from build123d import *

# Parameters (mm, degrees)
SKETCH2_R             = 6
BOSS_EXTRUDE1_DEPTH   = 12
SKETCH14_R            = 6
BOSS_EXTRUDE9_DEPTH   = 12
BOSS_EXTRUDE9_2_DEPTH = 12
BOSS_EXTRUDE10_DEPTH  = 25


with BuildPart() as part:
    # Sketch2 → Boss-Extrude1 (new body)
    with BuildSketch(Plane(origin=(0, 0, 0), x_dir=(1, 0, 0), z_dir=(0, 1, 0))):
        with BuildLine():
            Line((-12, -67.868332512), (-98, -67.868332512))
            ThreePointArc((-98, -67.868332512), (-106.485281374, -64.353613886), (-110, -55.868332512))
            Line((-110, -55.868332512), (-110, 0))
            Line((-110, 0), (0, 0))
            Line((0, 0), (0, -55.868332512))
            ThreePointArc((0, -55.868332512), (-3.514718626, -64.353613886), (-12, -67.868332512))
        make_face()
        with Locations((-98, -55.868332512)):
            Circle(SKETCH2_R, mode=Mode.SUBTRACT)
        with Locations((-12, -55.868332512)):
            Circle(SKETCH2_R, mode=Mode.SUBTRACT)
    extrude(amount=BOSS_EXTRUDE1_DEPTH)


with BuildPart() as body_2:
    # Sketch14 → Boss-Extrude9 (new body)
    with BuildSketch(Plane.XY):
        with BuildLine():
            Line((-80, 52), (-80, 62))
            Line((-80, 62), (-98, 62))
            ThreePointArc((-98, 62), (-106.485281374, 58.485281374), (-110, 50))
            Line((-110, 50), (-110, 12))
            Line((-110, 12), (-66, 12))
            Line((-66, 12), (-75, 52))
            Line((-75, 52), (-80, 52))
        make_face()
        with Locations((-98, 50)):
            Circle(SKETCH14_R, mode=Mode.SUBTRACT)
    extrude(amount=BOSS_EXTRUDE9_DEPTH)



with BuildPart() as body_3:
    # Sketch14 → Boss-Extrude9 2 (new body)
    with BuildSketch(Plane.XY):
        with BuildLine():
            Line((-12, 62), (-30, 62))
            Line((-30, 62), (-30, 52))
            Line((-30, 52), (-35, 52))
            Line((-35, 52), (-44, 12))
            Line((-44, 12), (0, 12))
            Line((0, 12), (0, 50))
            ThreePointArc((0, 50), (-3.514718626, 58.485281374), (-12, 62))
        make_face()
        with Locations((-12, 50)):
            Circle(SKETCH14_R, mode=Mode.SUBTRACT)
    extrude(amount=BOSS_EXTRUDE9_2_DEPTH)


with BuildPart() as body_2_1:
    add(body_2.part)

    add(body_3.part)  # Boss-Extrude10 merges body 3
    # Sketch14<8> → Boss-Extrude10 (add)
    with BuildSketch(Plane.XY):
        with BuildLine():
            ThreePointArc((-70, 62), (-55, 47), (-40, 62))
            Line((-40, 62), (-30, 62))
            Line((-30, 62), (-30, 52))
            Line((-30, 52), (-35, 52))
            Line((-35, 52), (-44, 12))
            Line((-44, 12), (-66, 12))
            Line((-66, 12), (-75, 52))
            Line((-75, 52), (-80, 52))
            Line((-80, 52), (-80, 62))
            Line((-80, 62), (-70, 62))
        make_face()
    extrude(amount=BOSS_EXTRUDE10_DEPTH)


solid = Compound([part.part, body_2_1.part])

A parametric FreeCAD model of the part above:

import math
import FreeCAD as App
import Part
import Sketcher
Q = App.Units.Quantity

doc = App.newDocument("Part")
body = doc.addObject("PartDesign::Body", "Body")

sketch1 = doc.addObject("Sketcher::SketchObject", "Sketch")
body.addObject(sketch1)
sketch1.AttachmentSupport = (doc.XZ_Plane, [""])
sketch1.MapMode = "FlatFace"
sketch1.addGeometry(Part.LineSegment(App.Vector(-98, 68, 0), App.Vector(-12, 68, 0)), False)
sketch1.addGeometry(Part.ArcOfCircle(Part.Circle(App.Vector(-12, 56, 0), App.Vector(0, 0, 1), 12), math.radians(0), math.radians(90)), False)
sketch1.addGeometry(Part.LineSegment(App.Vector(0, 56, 0), App.Vector(0, 0, 0)), False)
sketch1.addGeometry(Part.LineSegment(App.Vector(0, 0, 0), App.Vector(-110, 0, 0)), False)
sketch1.addGeometry(Part.LineSegment(App.Vector(-110, 0, 0), App.Vector(-110, 56, 0)), False)
sketch1.addGeometry(Part.ArcOfCircle(Part.Circle(App.Vector(-98, 56, 0), App.Vector(0, 0, 1), 12), math.radians(90), math.radians(180)), False)
sketch1.addGeometry(Part.Circle(App.Vector(-12, 56, 0), App.Vector(0, 0, 1), 6), False)
sketch1.addGeometry(Part.Circle(App.Vector(-98, 56, 0), App.Vector(0, 0, 1), 6), False)
sketch1.addConstraint(Sketcher.Constraint("Tangent", 0, 2, 1, 2))
sketch1.addConstraint(Sketcher.Constraint("Tangent", 1, 1, 2, 1))
sketch1.addConstraint(Sketcher.Constraint("Coincident", 2, 2, 3, 1))
sketch1.addConstraint(Sketcher.Constraint("Coincident", 3, 2, 4, 1))
sketch1.addConstraint(Sketcher.Constraint("Tangent", 4, 2, 5, 2))
sketch1.addConstraint(Sketcher.Constraint("Tangent", 5, 1, 0, 1))
sketch1.addConstraint(Sketcher.Constraint("Horizontal", 0))
sketch1.addConstraint(Sketcher.Constraint("Vertical", 2))
sketch1.addConstraint(Sketcher.Constraint("Horizontal", 3))
sketch1.addConstraint(Sketcher.Constraint("Vertical", 4))
sketch1.addConstraint(Sketcher.Constraint("Coincident", 2, 2, -1, 1))
sketch1.addConstraint(Sketcher.Constraint("Coincident", 6, 3, 1, 3))
sketch1.addConstraint(Sketcher.Constraint("Coincident", 7, 3, 5, 3))
sketch1.addConstraint(Sketcher.Constraint("Equal", 1, 5))
sketch1.addConstraint(Sketcher.Constraint("Equal", 6, 7))
sketch1.addConstraint(Sketcher.Constraint("Diameter", 6, Q("12 mm")))
sketch1.addConstraint(Sketcher.Constraint("Radius", 1, Q("12 mm")))
sketch1.addConstraint(Sketcher.Constraint("DistanceX", 0, 1, 0, 2, Q("86 mm")))
sketch1.addConstraint(Sketcher.Constraint("DistanceY", 2, 2, 2, 1, Q("55.868333 mm")))
pad1 = doc.addObject("PartDesign::Pad", "Pad")
body.addObject(pad1)
pad1.Profile = sketch1
pad1.Length = 12
pad1.Reversed = True
body2 = doc.addObject("PartDesign::Body", "Body001")

sketch2 = doc.addObject("Sketcher::SketchObject", "Sketch001")
body2.addObject(sketch2)
sketch2.AttachmentSupport = (doc.getObject("XY_Plane001"), [""])
sketch2.MapMode = "FlatFace"
sketch2.addGeometry(Part.LineSegment(App.Vector(-80, 52, 0), App.Vector(-80, 62, 0)), False)
sketch2.addGeometry(Part.LineSegment(App.Vector(-80, 62, 0), App.Vector(-98, 62, 0)), False)
sketch2.addGeometry(Part.ArcOfCircle(Part.Circle(App.Vector(-98, 50, 0), App.Vector(0, 0, 1), 12), math.radians(90), math.radians(180)), False)
sketch2.addGeometry(Part.LineSegment(App.Vector(-110, 50, 0), App.Vector(-110, 12, 0)), False)
sketch2.addGeometry(Part.LineSegment(App.Vector(-110, 12, 0), App.Vector(-66, 12, 0)), False)
sketch2.addGeometry(Part.LineSegment(App.Vector(-66, 12, 0), App.Vector(-75, 52, 0)), False)
sketch2.addGeometry(Part.LineSegment(App.Vector(-75, 52, 0), App.Vector(-80, 52, 0)), False)
sketch2.addGeometry(Part.Circle(App.Vector(-98, 50, 0), App.Vector(0, 0, 1), 6), False)
sketch2.addConstraint(Sketcher.Constraint("Coincident", 0, 2, 1, 1))
sketch2.addConstraint(Sketcher.Constraint("Tangent", 1, 2, 2, 1))
sketch2.addConstraint(Sketcher.Constraint("Tangent", 2, 2, 3, 1))
sketch2.addConstraint(Sketcher.Constraint("Coincident", 3, 2, 4, 1))
sketch2.addConstraint(Sketcher.Constraint("Coincident", 4, 2, 5, 1))
sketch2.addConstraint(Sketcher.Constraint("Coincident", 5, 2, 6, 1))
sketch2.addConstraint(Sketcher.Constraint("Coincident", 6, 2, 0, 1))
sketch2.addConstraint(Sketcher.Constraint("Vertical", 0))
sketch2.addConstraint(Sketcher.Constraint("Horizontal", 1))
sketch2.addConstraint(Sketcher.Constraint("Vertical", 3))
sketch2.addConstraint(Sketcher.Constraint("Horizontal", 4))
sketch2.addConstraint(Sketcher.Constraint("Horizontal", 6))
sketch2.addConstraint(Sketcher.Constraint("Coincident", 7, 3, 2, 3))
sketch2.addConstraint(Sketcher.Constraint("Diameter", 7, Q("12 mm")))
sketch2.addConstraint(Sketcher.Constraint("Radius", 2, Q("12 mm")))
sketch2.addConstraint(Sketcher.Constraint("DistanceX", 1, 2, 1, 1, Q("18 mm")))
sketch2.addConstraint(Sketcher.Constraint("DistanceX", 4, 1, 4, 2, Q("44 mm")))
sketch2.addConstraint(Sketcher.Constraint("DistanceX", 6, 2, 6, 1, Q("5 mm")))
sketch2.addConstraint(Sketcher.Constraint("DistanceY", 0, 1, 0, 2, Q("10 mm")))
sketch2.addConstraint(Sketcher.Constraint("DistanceY", 3, 2, 3, 1, Q("38 mm")))
sketch2.addConstraint(Sketcher.Constraint("DistanceX", 2, 3, -1, 1, Q("98 mm")))
sketch2.addConstraint(Sketcher.Constraint("DistanceY", -1, 1, 2, 3, Q("50 mm")))
pad2 = doc.addObject("PartDesign::Pad", "Pad001")
body2.addObject(pad2)
pad2.Profile = sketch2
pad2.Length = 12
body3 = doc.addObject("PartDesign::Body", "Body002")

sketch3 = doc.addObject("Sketcher::SketchObject", "Sketch002")
body3.addObject(sketch3)
sketch3.AttachmentSupport = (doc.getObject("XY_Plane002"), [""])
sketch3.MapMode = "FlatFace"
sketch3.addGeometry(Part.LineSegment(App.Vector(-12, 62, 0), App.Vector(-30, 62, 0)), False)
sketch3.addGeometry(Part.LineSegment(App.Vector(-30, 62, 0), App.Vector(-30, 52, 0)), False)
sketch3.addGeometry(Part.LineSegment(App.Vector(-30, 52, 0), App.Vector(-35, 52, 0)), False)
sketch3.addGeometry(Part.LineSegment(App.Vector(-35, 52, 0), App.Vector(-44, 12, 0)), False)
sketch3.addGeometry(Part.LineSegment(App.Vector(-44, 12, 0), App.Vector(0, 12, 0)), False)
sketch3.addGeometry(Part.LineSegment(App.Vector(0, 12, 0), App.Vector(0, 50, 0)), False)
sketch3.addGeometry(Part.ArcOfCircle(Part.Circle(App.Vector(-12, 50, 0), App.Vector(0, 0, 1), 12), math.radians(0), math.radians(90)), False)
sketch3.addGeometry(Part.Circle(App.Vector(-12, 50, 0), App.Vector(0, 0, 1), 6), False)
sketch3.addConstraint(Sketcher.Constraint("Coincident", 0, 2, 1, 1))
sketch3.addConstraint(Sketcher.Constraint("Coincident", 1, 2, 2, 1))
sketch3.addConstraint(Sketcher.Constraint("Coincident", 2, 2, 3, 1))
sketch3.addConstraint(Sketcher.Constraint("Coincident", 3, 2, 4, 1))
sketch3.addConstraint(Sketcher.Constraint("Coincident", 4, 2, 5, 1))
sketch3.addConstraint(Sketcher.Constraint("Tangent", 5, 2, 6, 1))
sketch3.addConstraint(Sketcher.Constraint("Tangent", 6, 2, 0, 1))
sketch3.addConstraint(Sketcher.Constraint("Horizontal", 0))
sketch3.addConstraint(Sketcher.Constraint("Vertical", 1))
sketch3.addConstraint(Sketcher.Constraint("Horizontal", 2))
sketch3.addConstraint(Sketcher.Constraint("Horizontal", 4))
sketch3.addConstraint(Sketcher.Constraint("Vertical", 5))
sketch3.addConstraint(Sketcher.Constraint("Coincident", 7, 3, 6, 3))
sketch3.addConstraint(Sketcher.Constraint("PointOnObject", 4, 2, -2))
sketch3.addConstraint(Sketcher.Constraint("Diameter", 7, Q("12 mm")))
sketch3.addConstraint(Sketcher.Constraint("Radius", 6, Q("12 mm")))
sketch3.addConstraint(Sketcher.Constraint("DistanceX", 0, 2, 0, 1, Q("18 mm")))
sketch3.addConstraint(Sketcher.Constraint("DistanceX", 2, 2, 2, 1, Q("5 mm")))
sketch3.addConstraint(Sketcher.Constraint("DistanceX", 4, 1, 4, 2, Q("44 mm")))
sketch3.addConstraint(Sketcher.Constraint("DistanceY", 1, 2, 1, 1, Q("10 mm")))
sketch3.addConstraint(Sketcher.Constraint("DistanceY", 5, 1, 5, 2, Q("38 mm")))
sketch3.addConstraint(Sketcher.Constraint("DistanceY", -1, 1, 6, 3, Q("50 mm")))
pad3 = doc.addObject("PartDesign::Pad", "Pad002")
body3.addObject(pad3)
pad3.Profile = sketch3
pad3.Length = 12
body2.AllowCompound = True
doc.recompute()

boolean = doc.addObject("PartDesign::Boolean", "Boolean")
body2.addObject(boolean)
boolean.Type = "Fuse"
boolean.addObjects([body3])

sketch4 = doc.addObject("Sketcher::SketchObject", "Sketch003")
body2.addObject(sketch4)
sketch4.AttachmentSupport = (doc.getObject("XY_Plane001"), [""])
sketch4.MapMode = "FlatFace"
sketch4.addGeometry(Part.ArcOfCircle(Part.Circle(App.Vector(-55, 62, 0), App.Vector(0, 0, 1), 15), math.radians(180), math.radians(360)), False)
sketch4.addGeometry(Part.LineSegment(App.Vector(-70, 62, 0), App.Vector(-80, 62, 0)), False)
sketch4.addGeometry(Part.LineSegment(App.Vector(-80, 62, 0), App.Vector(-80, 52, 0)), False)
sketch4.addGeometry(Part.LineSegment(App.Vector(-80, 52, 0), App.Vector(-75, 52, 0)), False)
sketch4.addGeometry(Part.LineSegment(App.Vector(-75, 52, 0), App.Vector(-66, 12, 0)), False)
sketch4.addGeometry(Part.LineSegment(App.Vector(-66, 12, 0), App.Vector(-44, 12, 0)), False)
sketch4.addGeometry(Part.LineSegment(App.Vector(-44, 12, 0), App.Vector(-35, 52, 0)), False)
sketch4.addGeometry(Part.LineSegment(App.Vector(-35, 52, 0), App.Vector(-30, 52, 0)), False)
sketch4.addGeometry(Part.LineSegment(App.Vector(-30, 52, 0), App.Vector(-30, 62, 0)), False)
sketch4.addGeometry(Part.LineSegment(App.Vector(-30, 62, 0), App.Vector(-40, 62, 0)), False)
sketch4.addConstraint(Sketcher.Constraint("Coincident", 0, 1, 1, 1))
sketch4.addConstraint(Sketcher.Constraint("Coincident", 1, 2, 2, 1))
sketch4.addConstraint(Sketcher.Constraint("Coincident", 2, 2, 3, 1))
sketch4.addConstraint(Sketcher.Constraint("Coincident", 3, 2, 4, 1))
sketch4.addConstraint(Sketcher.Constraint("Coincident", 4, 2, 5, 1))
sketch4.addConstraint(Sketcher.Constraint("Coincident", 5, 2, 6, 1))
sketch4.addConstraint(Sketcher.Constraint("Coincident", 6, 2, 7, 1))
sketch4.addConstraint(Sketcher.Constraint("Coincident", 7, 2, 8, 1))
sketch4.addConstraint(Sketcher.Constraint("Coincident", 8, 2, 9, 1))
sketch4.addConstraint(Sketcher.Constraint("Coincident", 9, 2, 0, 2))
sketch4.addConstraint(Sketcher.Constraint("Horizontal", 1))
sketch4.addConstraint(Sketcher.Constraint("Vertical", 2))
sketch4.addConstraint(Sketcher.Constraint("Horizontal", 3))
sketch4.addConstraint(Sketcher.Constraint("Horizontal", 5))
sketch4.addConstraint(Sketcher.Constraint("Horizontal", 7))
sketch4.addConstraint(Sketcher.Constraint("Vertical", 8))
sketch4.addConstraint(Sketcher.Constraint("Horizontal", 9))
sketch4.addConstraint(Sketcher.Constraint("Horizontal", 3, 2, 6, 2))
sketch4.addConstraint(Sketcher.Constraint("Horizontal", 1, 2, 8, 2))
sketch4.addConstraint(Sketcher.Constraint("Equal", 3, 7))
sketch4.addConstraint(Sketcher.Constraint("Equal", 1, 9))
sketch4.addConstraint(Sketcher.Constraint("Equal", 9, 2))
sketch4.addConstraint(Sketcher.Constraint("Equal", 4, 6))
sketch4.addConstraint(Sketcher.Constraint("Radius", 0, Q("15 mm")))
sketch4.addConstraint(Sketcher.Constraint("DistanceX", 1, 2, 1, 1, Q("10 mm")))
sketch4.addConstraint(Sketcher.Constraint("DistanceX", 3, 1, 3, 2, Q("5 mm")))
sketch4.addConstraint(Sketcher.Constraint("DistanceX", 5, 1, 5, 2, Q("22 mm")))
sketch4.addConstraint(Sketcher.Constraint("Distance", 4, Q("41 mm")))
sketch4.addConstraint(Sketcher.Constraint("DistanceX", 0, 3, -1, 1, Q("55 mm")))
sketch4.addConstraint(Sketcher.Constraint("DistanceY", -1, 1, 0, 3, Q("62 mm")))
sketch4.addConstraint(Sketcher.Constraint("DistanceY", -1, 1, 0, 1, Q("62 mm")))
pad4 = doc.addObject("PartDesign::Pad", "Pad003")
body2.addObject(pad4)
pad4.Profile = sketch4
pad4.Length = 25

doc.recompute()
